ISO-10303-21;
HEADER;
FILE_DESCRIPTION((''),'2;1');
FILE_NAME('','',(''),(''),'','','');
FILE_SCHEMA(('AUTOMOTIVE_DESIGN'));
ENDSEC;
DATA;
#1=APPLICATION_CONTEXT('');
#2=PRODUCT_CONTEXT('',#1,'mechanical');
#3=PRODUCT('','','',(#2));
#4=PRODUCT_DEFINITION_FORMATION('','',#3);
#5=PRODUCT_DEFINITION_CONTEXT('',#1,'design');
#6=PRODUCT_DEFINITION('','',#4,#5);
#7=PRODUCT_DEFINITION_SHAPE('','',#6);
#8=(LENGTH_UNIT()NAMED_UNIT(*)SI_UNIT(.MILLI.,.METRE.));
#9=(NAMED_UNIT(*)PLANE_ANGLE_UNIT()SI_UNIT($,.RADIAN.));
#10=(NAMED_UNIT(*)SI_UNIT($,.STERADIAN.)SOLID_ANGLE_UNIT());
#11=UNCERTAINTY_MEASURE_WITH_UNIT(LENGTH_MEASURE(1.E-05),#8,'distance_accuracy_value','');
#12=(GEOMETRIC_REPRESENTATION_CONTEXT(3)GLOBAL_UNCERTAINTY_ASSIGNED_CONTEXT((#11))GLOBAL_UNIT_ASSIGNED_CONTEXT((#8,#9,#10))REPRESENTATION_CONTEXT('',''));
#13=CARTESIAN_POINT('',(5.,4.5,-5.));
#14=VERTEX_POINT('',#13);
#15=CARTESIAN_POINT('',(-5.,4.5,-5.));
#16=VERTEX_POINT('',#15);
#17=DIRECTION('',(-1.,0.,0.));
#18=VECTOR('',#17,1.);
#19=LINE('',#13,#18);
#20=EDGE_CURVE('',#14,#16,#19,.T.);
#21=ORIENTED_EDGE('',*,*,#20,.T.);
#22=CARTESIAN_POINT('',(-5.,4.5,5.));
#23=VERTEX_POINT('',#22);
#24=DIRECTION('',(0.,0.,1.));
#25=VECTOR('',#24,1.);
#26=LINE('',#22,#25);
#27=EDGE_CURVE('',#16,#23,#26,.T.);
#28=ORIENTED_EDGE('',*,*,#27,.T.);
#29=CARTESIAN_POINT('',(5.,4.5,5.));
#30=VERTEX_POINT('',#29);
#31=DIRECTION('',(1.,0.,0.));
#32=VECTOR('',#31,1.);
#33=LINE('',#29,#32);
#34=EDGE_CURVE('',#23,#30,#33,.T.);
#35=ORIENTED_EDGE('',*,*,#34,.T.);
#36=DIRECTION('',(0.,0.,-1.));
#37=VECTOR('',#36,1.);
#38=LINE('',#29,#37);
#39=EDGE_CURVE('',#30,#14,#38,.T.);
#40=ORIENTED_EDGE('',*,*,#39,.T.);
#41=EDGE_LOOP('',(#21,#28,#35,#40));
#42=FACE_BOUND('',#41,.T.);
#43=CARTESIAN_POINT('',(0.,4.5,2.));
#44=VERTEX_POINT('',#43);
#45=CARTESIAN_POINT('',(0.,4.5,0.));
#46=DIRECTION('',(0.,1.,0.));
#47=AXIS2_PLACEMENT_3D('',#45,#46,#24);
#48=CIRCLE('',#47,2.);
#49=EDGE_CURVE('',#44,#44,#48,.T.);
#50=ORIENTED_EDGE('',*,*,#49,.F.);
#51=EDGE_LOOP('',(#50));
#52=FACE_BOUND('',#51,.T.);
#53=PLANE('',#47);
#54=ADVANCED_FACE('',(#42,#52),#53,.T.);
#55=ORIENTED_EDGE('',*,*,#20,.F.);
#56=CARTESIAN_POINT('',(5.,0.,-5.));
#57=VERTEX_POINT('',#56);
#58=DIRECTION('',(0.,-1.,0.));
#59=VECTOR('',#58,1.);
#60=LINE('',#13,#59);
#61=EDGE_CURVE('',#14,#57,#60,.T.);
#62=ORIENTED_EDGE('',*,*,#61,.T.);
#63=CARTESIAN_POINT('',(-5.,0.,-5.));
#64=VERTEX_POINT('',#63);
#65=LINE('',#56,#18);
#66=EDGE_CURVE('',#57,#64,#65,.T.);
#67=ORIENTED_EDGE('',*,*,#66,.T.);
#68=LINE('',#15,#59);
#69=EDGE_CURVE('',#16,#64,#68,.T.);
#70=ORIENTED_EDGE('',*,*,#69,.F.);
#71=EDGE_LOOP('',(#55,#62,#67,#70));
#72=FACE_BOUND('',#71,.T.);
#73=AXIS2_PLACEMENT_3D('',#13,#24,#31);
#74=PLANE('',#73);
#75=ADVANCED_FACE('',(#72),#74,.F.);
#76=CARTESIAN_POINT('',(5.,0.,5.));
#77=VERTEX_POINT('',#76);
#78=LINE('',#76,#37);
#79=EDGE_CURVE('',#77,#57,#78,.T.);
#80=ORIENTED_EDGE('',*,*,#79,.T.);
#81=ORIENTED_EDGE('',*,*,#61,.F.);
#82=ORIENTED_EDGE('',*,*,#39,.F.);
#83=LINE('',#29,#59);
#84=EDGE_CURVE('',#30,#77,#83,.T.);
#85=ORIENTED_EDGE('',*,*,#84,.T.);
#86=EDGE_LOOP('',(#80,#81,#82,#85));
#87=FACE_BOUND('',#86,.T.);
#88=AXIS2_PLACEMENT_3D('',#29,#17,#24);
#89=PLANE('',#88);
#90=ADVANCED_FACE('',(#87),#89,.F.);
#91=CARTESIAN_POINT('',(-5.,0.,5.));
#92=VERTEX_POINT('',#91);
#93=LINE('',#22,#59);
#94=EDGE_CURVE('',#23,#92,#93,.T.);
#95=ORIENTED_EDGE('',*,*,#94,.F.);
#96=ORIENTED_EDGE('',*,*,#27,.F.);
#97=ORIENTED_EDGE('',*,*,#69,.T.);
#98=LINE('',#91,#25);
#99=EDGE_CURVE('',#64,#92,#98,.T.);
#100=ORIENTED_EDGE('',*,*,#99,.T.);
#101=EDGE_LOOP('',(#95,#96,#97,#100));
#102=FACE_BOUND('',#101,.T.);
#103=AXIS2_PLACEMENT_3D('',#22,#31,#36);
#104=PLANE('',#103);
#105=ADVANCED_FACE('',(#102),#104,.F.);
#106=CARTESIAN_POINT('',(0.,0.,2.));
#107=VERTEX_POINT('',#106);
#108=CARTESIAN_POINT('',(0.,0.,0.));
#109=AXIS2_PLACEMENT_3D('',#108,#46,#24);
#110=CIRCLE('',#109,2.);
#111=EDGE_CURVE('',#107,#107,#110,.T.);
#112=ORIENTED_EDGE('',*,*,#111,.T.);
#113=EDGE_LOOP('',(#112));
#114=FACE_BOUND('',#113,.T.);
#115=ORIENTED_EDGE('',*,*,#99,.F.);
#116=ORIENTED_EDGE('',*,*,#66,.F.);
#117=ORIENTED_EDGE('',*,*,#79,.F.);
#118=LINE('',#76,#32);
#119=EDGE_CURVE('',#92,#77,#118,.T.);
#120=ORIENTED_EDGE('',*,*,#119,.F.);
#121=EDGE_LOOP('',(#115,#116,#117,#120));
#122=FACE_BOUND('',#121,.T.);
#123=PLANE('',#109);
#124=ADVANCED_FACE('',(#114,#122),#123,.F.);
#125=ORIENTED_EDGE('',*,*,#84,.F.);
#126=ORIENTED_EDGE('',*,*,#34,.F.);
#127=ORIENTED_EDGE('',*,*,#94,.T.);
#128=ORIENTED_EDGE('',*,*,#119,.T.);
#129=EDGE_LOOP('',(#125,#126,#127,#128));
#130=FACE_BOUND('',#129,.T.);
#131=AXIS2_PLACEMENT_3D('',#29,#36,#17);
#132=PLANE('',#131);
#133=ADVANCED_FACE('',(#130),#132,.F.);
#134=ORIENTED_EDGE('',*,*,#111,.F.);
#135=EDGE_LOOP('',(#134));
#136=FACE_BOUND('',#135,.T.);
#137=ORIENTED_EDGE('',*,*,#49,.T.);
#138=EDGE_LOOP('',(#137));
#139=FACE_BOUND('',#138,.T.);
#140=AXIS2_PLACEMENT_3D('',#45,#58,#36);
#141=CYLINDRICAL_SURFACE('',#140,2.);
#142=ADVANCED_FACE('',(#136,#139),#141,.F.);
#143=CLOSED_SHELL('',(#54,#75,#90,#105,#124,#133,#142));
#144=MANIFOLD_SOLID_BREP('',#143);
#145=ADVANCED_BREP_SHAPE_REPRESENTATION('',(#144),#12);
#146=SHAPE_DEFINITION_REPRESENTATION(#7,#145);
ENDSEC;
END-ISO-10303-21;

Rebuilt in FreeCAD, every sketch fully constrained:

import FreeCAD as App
import Part
import Sketcher
from FreeCAD import Vector

doc = App.newDocument("Part")
body = doc.addObject("PartDesign::Body", "Body")

# Sketch on XZ plane
sketch1 = doc.addObject("Sketcher::SketchObject", "Sketch")
body.addObject(sketch1)
sketch1.AttachmentSupport = (doc.XZ_Plane, [""])
sketch1.MapMode = "FlatFace"
sketch1.addGeometry([
    Part.LineSegment(Vector(-5, -5, 0), Vector(-5, 5, 0)),  # 0
    Part.LineSegment(Vector(-5, 5, 0), Vector(5, 5, 0)),  # 1
    Part.LineSegment(Vector(5, 5, 0), Vector(5, -5, 0)),  # 2
    Part.LineSegment(Vector(5, -5, 0), Vector(-5, -5, 0)),  # 3
    Part.Circle(Vector(0, 0, 0), Vector(0, 0, 1), 2),  # 4
], False)
sketch1.addConstraint([
    Sketcher.Constraint("Coincident", 0, 2, 1, 1),
    Sketcher.Constraint("Coincident", 1, 2, 2, 1),
    Sketcher.Constraint("Coincident", 2, 2, 3, 1),
    Sketcher.Constraint("Coincident", 3, 2, 0, 1),
    Sketcher.Constraint("Vertical", 0),
    Sketcher.Constraint("Horizontal", 1),
    Sketcher.Constraint("Vertical", 2),
    Sketcher.Constraint("Horizontal", 3),
    Sketcher.Constraint("Coincident", 4, 3, -1, 1),
    Sketcher.Constraint("Symmetric", 0, 2, 2, 2, -1, 1),
    Sketcher.Constraint("Equal", 3, 0),
    Sketcher.Constraint("Diameter", 4, 4.0),
    Sketcher.Constraint("DistanceX", 1, 1, 1, 2, 10.0),
])
pad1 = doc.addObject("PartDesign::Pad", "Pad")
body.addObject(pad1)
pad1.Profile = sketch1
pad1.Length = 4.5
pad1.Reversed = True

doc.recompute()
